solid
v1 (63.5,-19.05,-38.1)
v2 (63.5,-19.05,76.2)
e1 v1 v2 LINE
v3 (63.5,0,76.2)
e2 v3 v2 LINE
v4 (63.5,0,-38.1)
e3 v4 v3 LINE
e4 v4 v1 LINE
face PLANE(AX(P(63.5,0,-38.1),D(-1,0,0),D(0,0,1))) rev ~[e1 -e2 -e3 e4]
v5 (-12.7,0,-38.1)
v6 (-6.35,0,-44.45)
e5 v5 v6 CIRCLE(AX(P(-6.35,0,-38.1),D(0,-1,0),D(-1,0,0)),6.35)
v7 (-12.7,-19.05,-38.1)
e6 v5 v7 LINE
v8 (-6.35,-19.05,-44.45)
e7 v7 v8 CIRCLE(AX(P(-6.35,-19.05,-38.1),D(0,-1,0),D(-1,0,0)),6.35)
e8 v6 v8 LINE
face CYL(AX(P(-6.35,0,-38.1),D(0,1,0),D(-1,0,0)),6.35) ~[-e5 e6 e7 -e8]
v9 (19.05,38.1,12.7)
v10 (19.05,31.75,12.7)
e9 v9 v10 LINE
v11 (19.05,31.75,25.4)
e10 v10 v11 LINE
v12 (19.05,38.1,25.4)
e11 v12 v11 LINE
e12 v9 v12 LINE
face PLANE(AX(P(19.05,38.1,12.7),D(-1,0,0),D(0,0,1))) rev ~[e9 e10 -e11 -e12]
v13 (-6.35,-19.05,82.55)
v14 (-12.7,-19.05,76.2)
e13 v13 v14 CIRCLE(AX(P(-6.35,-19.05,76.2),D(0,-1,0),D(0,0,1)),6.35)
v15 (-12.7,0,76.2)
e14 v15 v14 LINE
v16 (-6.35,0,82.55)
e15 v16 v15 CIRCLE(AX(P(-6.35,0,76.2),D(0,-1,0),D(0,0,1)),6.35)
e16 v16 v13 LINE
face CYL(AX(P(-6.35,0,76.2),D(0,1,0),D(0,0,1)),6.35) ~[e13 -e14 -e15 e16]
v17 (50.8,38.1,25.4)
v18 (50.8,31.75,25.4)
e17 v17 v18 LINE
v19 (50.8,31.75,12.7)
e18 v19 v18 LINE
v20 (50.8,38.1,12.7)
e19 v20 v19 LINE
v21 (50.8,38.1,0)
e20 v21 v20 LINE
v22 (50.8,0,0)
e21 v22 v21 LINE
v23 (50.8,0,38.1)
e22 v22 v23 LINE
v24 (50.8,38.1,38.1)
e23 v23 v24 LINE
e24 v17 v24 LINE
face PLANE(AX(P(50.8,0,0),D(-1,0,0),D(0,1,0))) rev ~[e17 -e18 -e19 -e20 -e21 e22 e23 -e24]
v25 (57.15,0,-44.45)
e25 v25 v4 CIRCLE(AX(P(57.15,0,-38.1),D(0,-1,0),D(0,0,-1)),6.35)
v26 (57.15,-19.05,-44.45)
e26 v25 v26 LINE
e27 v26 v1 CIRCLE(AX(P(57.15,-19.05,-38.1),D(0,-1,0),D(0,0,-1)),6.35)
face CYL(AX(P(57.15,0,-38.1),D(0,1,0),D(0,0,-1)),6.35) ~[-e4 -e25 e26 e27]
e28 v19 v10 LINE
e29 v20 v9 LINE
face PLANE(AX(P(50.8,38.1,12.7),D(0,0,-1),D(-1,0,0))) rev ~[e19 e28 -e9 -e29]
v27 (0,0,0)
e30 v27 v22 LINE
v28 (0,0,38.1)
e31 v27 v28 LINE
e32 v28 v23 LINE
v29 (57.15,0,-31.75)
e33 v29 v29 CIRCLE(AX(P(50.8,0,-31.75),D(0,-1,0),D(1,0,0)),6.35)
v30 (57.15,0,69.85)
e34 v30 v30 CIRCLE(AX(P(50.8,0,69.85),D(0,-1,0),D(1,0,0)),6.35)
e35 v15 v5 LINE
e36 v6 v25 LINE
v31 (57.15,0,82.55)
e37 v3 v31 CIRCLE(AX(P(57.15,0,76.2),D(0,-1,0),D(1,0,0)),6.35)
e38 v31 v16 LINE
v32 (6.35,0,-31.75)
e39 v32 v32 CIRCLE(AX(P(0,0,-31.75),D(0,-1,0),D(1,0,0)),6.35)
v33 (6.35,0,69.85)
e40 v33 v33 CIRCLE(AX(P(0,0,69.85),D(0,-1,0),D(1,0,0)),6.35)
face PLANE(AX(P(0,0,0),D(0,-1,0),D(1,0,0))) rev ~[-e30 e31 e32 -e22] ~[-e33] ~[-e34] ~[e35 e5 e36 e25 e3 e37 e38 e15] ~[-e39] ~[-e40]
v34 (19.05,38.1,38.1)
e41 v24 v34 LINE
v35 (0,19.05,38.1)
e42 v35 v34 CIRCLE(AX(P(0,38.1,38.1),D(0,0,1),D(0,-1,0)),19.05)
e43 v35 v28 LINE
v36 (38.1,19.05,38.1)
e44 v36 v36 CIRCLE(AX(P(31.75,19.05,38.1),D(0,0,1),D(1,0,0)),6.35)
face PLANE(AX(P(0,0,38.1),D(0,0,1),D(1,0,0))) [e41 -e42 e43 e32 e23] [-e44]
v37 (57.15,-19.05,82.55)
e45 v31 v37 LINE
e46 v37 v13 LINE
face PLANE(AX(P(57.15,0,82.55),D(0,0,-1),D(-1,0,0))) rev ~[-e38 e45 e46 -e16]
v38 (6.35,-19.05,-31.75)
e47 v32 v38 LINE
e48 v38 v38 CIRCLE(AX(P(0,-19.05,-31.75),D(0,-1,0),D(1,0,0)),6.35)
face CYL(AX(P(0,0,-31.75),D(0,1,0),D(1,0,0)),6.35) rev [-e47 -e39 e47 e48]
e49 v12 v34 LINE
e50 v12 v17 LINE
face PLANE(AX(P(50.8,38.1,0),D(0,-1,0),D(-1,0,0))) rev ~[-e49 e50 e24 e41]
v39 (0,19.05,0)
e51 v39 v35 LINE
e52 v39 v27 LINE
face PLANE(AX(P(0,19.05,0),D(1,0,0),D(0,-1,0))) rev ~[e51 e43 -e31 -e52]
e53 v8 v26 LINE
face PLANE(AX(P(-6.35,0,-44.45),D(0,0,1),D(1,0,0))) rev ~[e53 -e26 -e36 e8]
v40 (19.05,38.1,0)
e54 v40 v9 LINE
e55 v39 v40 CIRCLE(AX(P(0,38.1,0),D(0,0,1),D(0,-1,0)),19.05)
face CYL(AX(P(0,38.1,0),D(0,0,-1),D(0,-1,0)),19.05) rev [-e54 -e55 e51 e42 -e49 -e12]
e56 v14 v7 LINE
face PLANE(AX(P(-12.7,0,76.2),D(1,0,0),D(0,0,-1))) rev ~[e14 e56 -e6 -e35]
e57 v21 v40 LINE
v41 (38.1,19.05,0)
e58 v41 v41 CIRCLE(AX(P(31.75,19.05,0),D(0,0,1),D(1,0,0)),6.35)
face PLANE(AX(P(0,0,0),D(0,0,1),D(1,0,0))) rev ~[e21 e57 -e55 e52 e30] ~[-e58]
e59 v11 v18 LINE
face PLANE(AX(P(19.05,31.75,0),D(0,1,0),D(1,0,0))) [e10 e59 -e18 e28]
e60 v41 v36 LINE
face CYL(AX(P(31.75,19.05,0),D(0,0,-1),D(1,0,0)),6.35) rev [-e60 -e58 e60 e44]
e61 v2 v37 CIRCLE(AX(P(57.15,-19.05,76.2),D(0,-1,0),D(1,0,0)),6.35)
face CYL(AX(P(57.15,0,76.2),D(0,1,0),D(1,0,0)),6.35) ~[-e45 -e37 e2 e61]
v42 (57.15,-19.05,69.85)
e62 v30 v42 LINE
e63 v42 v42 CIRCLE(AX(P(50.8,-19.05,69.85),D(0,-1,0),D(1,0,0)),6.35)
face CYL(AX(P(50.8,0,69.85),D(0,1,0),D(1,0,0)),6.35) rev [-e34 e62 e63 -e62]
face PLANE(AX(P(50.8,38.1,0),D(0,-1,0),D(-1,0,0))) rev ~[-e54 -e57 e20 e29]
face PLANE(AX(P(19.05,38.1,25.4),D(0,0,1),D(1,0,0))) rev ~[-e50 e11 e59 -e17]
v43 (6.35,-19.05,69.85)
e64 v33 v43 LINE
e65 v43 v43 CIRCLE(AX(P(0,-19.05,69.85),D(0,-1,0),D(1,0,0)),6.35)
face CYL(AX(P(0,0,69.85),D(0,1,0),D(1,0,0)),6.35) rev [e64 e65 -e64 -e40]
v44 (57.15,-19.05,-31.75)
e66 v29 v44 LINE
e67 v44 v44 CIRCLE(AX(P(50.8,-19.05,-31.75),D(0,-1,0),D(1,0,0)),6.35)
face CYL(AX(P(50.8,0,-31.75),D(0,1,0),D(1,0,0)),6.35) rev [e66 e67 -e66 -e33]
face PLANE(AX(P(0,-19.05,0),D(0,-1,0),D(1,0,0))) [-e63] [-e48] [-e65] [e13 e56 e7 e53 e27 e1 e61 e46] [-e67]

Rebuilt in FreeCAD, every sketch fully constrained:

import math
import FreeCAD as App
import Part
import Sketcher
from FreeCAD import Vector
Q = App.Units.Quantity


def add_polygon(sketch, points):
    """Adds a closed chain of lines whose ends are joined by coincident constraints."""
    first, n = sketch.GeometryCount, len(points)
    for a, b in zip(points, points[1:] + points[:1]):
        sketch.addGeometry(Part.LineSegment(App.Vector(*a, 0), App.Vector(*b, 0)), False)
    for i in range(n):
        sketch.addConstraint(Sketcher.Constraint("Coincident", first + i, 2, first + (i + 1) % n, 1))

doc = App.newDocument("Part")
body = doc.addObject("PartDesign::Body", "Body")

sketch1 = doc.addObject("Sketcher::SketchObject", "Sketch")
body.addObject(sketch1)
sketch1.AttachmentSupport = (doc.XY_Plane, [""])
sketch1.MapMode = "FlatFace"
sketch1.addGeometry(Part.LineSegment(Vector(0, 19, 0), Vector(0, 0, 0)), False)
sketch1.addGeometry(Part.LineSegment(Vector(0, 0, 0), Vector(51, 0, 0)), False)
sketch1.addGeometry(Part.LineSegment(Vector(51, 0, 0), Vector(51, 38, 0)), False)
sketch1.addGeometry(Part.LineSegment(Vector(51, 38, 0), Vector(19, 38, 0)), False)
sketch1.addGeometry(Part.ArcOfCircle(Part.Circle(Vector(0, 38, 0), Vector(0, 0, 1), 19), math.radians(-90), math.radians(0)), False)
sketch1.addGeometry(Part.Circle(Vector(32, 19, 0), Vector(0, 0, 1), 6), False)
sketch1.addConstraint(Sketcher.Constraint("Coincident", 0, 2, 1, 1))
sketch1.addConstraint(Sketcher.Constraint("Coincident", 1, 2, 2, 1))
sketch1.addConstraint(Sketcher.Constraint("Coincident", 2, 2, 3, 1))
sketch1.addConstraint(Sketcher.Constraint("Coincident", 3, 2, 4, 2))
sketch1.addConstraint(Sketcher.Constraint("Coincident", 4, 1, 0, 1))
sketch1.addConstraint(Sketcher.Constraint("Vertical", 0))
sketch1.addConstraint(Sketcher.Constraint("Horizontal", 1))
sketch1.addConstraint(Sketcher.Constraint("Vertical", 2))
sketch1.addConstraint(Sketcher.Constraint("Horizontal", 3))
sketch1.addConstraint(Sketcher.Constraint("Coincident", 0, 2, -1, 1))
sketch1.addConstraint(Sketcher.Constraint("PointOnObject", 4, 3, -2))
sketch1.addConstraint(Sketcher.Constraint("Horizontal", 4, 3, 2, 2))
sketch1.addConstraint(Sketcher.Constraint("Horizontal", 5, 3, 4, 1))
sketch1.addConstraint(Sketcher.Constraint("Diameter", 5, Q("0.5 in")))
sketch1.addConstraint(Sketcher.Constraint("DistanceX", 1, 1, 1, 2, Q("2 in")))
sketch1.addConstraint(Sketcher.Constraint("Radius", 4, Q("0.75 in")))
sketch1.addConstraint(Sketcher.Constraint("DistanceY", 2, 1, 2, 2, Q("1.5 in")))
sketch1.addConstraint(Sketcher.Constraint("DistanceX", 3, 2, 5, 3, Q("0.5 in")))
pad1 = doc.addObject("PartDesign::Pad", "Pad")
body.addObject(pad1)
pad1.Profile = sketch1
pad1.Length = Q("1.5 in")

sketch2 = doc.addObject("Sketcher::SketchObject", "Sketch001")
body.addObject(sketch2)
sketch2.AttachmentSupport = (doc.XZ_Plane, [""])
sketch2.MapMode = "FlatFace"
sketch2.addGeometry(Part.ArcOfCircle(Part.Circle(Vector(57, 76, 0), Vector(0, 0, 1), 6), math.radians(0), math.radians(90)), False)
sketch2.addGeometry(Part.LineSegment(Vector(57, 83, 0), Vector(-6, 83, 0)), False)
sketch2.addGeometry(Part.ArcOfCircle(Part.Circle(Vector(-6, 76, 0), Vector(0, 0, 1), 6), math.radians(90), math.radians(180)), False)
sketch2.addGeometry(Part.LineSegment(Vector(-13, 76, 0), Vector(-13, -38, 0)), False)
sketch2.addGeometry(Part.ArcOfCircle(Part.Circle(Vector(-6, -38, 0), Vector(0, 0, 1), 6), math.radians(180), math.radians(270)), False)
sketch2.addGeometry(Part.LineSegment(Vector(-6, -44, 0), Vector(57, -44, 0)), False)
sketch2.addGeometry(Part.ArcOfCircle(Part.Circle(Vector(57, -38, 0), Vector(0, 0, 1), 6), math.radians(-90), math.radians(0)), False)
sketch2.addGeometry(Part.LineSegment(Vector(64, -38, 0), Vector(64, 76, 0)), False)
sketch2.addGeometry(Part.Circle(Vector(0, -32, 0), Vector(0, 0, 1), 6), False)
sketch2.addGeometry(Part.Circle(Vector(51, -32, 0), Vector(0, 0, 1), 6), False)
sketch2.addGeometry(Part.Circle(Vector(0, 70, 0), Vector(0, 0, 1), 6), False)
sketch2.addGeometry(Part.Circle(Vector(51, 70, 0), Vector(0, 0, 1), 6), False)
sketch2.addConstraint(Sketcher.Constraint("Tangent", 0, 2, 1, 1))
sketch2.addConstraint(Sketcher.Constraint("Tangent", 1, 2, 2, 1))
sketch2.addConstraint(Sketcher.Constraint("Tangent", 2, 2, 3, 1))
sketch2.addConstraint(Sketcher.Constraint("Tangent", 3, 2, 4, 1))
sketch2.addConstraint(Sketcher.Constraint("Tangent", 4, 2, 5, 1))
sketch2.addConstraint(Sketcher.Constraint("Tangent", 5, 2, 6, 1))
sketch2.addConstraint(Sketcher.Constraint("Tangent", 6, 2, 7, 1))
sketch2.addConstraint(Sketcher.Constraint("Tangent", 7, 2, 0, 1))
sketch2.addConstraint(Sketcher.Constraint("Horizontal", 1))
sketch2.addConstraint(Sketcher.Constraint("Vertical", 3))
sketch2.addConstraint(Sketcher.Constraint("Horizontal", 5))
sketch2.addConstraint(Sketcher.Constraint("Vertical", 7))
sketch2.addConstraint(Sketcher.Constraint("Equal", 0, 2))
sketch2.addConstraint(Sketcher.Constraint("Equal", 2, 4))
sketch2.addConstraint(Sketcher.Constraint("Equal", 4, 6))
sketch2.addConstraint(Sketcher.Constraint("Equal", 6, 8))
sketch2.addConstraint(Sketcher.Constraint("Equal", 8, 9))
sketch2.addConstraint(Sketcher.Constraint("Equal", 9, 10))
sketch2.addConstraint(Sketcher.Constraint("Equal", 10, 11))
sketch2.addConstraint(Sketcher.Constraint("PointOnObject", 8, 3, -2))
sketch2.addConstraint(Sketcher.Constraint("PointOnObject", 10, 3, -2))
sketch2.addConstraint(Sketcher.Constraint("Horizontal", 8, 3, 9, 3))
sketch2.addConstraint(Sketcher.Constraint("Horizontal", 10, 3, 11, 3))
sketch2.addConstraint(Sketcher.Constraint("Vertical", 9, 3, 11, 3))
sketch2.addConstraint(Sketcher.Constraint("Diameter", 8, Q("0.5 in")))
sketch2.addConstraint(Sketcher.Constraint("DistanceY", -1, 1, 0, 3, Q("3 in")))
sketch2.addConstraint(Sketcher.Constraint("DistanceX", 2, 2, -1, 1, Q("0.5 in")))
sketch2.addConstraint(Sketcher.Constraint("DistanceY", 11, 3, 0, 2, Q("0.5 in")))
sketch2.addConstraint(Sketcher.Constraint("DistanceY", 4, 2, 8, 3, Q("0.5 in")))
sketch2.addConstraint(Sketcher.Constraint("DistanceX", 9, 3, 6, 2, Q("0.5 in")))
sketch2.addConstraint(Sketcher.Constraint("DistanceY", 4, 2, -1, 1, Q("1.75 in")))
sketch2.addConstraint(Sketcher.Constraint("DistanceX", 1, 2, 1, 1, Q("2.5 in")))
pad2 = doc.addObject("PartDesign::Pad", "Pad001")
body.addObject(pad2)
pad2.Profile = sketch2
pad2.Length = Q("0.75 in")

sketch3 = doc.addObject("Sketcher::SketchObject", "Sketch002")
body.addObject(sketch3)
sketch3.AttachmentSupport = (doc.XZ_Plane, [""])
sketch3.MapMode = "FlatFace"
sketch3.AttachmentOffset = App.Placement(Vector(0, 0, -1.5 * 25.4), App.Rotation())
add_polygon(sketch3, [(51, 25), (51, 13), (19, 13), (19, 25)])
sketch3.addConstraint(Sketcher.Constraint("Vertical", 0))
sketch3.addConstraint(Sketcher.Constraint("Horizontal", 1))
sketch3.addConstraint(Sketcher.Constraint("Vertical", 2))
sketch3.addConstraint(Sketcher.Constraint("Horizontal", 3))
sketch3.addConstraint(Sketcher.Constraint("DistanceY", 0, 2, 0, 1, Q("0.5 in")))
sketch3.addConstraint(Sketcher.Constraint("DistanceY", -1, 1, 0, 2, Q("0.5 in")))
sketch3.addConstraint(Sketcher.Constraint("DistanceX", -1, 1, 0, 2, Q("2 in")))
sketch3.addConstraint(Sketcher.Constraint("DistanceX", 1, 2, 1, 1, Q("1.25 in")))
pocket1 = doc.addObject("PartDesign::Pocket", "Pocket")
body.addObject(pocket1)
pocket1.Profile = sketch3
pocket1.Length = Q("0.25 in")
pocket1.Reversed = True

doc.recompute()
